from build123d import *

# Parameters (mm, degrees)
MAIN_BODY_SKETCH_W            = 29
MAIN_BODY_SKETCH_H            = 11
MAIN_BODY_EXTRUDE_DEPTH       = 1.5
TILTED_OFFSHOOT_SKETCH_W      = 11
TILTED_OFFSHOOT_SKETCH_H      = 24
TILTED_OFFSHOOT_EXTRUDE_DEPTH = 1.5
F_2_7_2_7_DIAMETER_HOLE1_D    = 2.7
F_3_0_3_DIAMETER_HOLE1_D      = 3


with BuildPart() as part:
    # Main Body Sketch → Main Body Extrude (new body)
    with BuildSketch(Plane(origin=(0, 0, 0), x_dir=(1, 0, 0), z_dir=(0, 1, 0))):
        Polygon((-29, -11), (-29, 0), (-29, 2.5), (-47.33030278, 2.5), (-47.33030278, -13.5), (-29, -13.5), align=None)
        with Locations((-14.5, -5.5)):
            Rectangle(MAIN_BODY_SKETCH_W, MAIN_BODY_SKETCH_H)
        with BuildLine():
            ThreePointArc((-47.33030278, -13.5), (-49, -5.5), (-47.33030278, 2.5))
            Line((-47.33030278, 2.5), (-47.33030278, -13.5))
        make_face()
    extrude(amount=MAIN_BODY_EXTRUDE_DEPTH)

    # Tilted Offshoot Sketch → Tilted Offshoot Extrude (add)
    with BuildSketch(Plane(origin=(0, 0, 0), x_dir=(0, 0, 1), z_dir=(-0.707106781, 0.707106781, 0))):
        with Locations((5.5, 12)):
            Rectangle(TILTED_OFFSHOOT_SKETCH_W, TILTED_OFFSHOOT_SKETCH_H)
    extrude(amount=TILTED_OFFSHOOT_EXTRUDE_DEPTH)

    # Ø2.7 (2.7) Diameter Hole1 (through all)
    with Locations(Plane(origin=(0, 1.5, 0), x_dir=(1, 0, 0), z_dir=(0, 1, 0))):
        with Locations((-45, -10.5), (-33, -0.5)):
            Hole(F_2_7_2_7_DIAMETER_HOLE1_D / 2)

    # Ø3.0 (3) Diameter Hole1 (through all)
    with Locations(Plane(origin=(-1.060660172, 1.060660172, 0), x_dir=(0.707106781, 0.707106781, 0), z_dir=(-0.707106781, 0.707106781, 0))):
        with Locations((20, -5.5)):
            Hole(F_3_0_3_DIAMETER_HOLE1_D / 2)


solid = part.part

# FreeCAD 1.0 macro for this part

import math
import FreeCAD as App
import Part
import Sketcher
Q = App.Units.Quantity


def add_polygon(sketch, points):
    """Adds a closed chain of lines whose ends are joined by coincident constraints."""
    first, n = sketch.GeometryCount, len(points)
    for a, b in zip(points, points[1:] + points[:1]):
        sketch.addGeometry(Part.LineSegment(App.Vector(*a, 0), App.Vector(*b, 0)), False)
    for i in range(n):
        sketch.addConstraint(Sketcher.Constraint("Coincident", first + i, 2, first + (i + 1) % n, 1))

doc = App.newDocument("Part")
params = doc.addObject("Spreadsheet::Sheet", "Params")
for row, (alias, value) in enumerate([
    ("sketch1_radius", "20 mm"),
    ("sketch1_width", "29 mm"),
    ("sketch1_height", "11 mm"),
    ("sketch1_height2", "2.5 mm"),
    ("pad1_length", "1.5 mm"),
    ("sketch2_width", "11 mm"),
    ("sketch2_height", "24 mm"),
    ("pad2_length", "1.5 mm"),
    ("sketch3_diameter", "2.7 mm"),
    ("hole_diameter", "2.7 mm"),
    ("sketch4_diameter", "3 mm"),
    ("hole2_diameter", "3 mm"),
], start=1):
    params.set(f"A{row}", alias)
    params.set(f"B{row}", "=" + value)
    params.setAlias(f"B{row}", alias)

body = doc.addObject("PartDesign::Body", "Body")

sketch1 = doc.addObject("Sketcher::SketchObject", "Sketch")
body.addObject(sketch1)
sketch1.AttachmentSupport = (doc.XZ_Plane, [""])
sketch1.MapMode = "FlatFace"
sketch1.addGeometry([
    Part.LineSegment(App.Vector(-29, -2.5, 0), App.Vector(-47.3, -2.5, 0)),
    Part.ArcOfCircle(Part.Circle(App.Vector(-29, 5.5, 0), App.Vector(0, 0, 1), 20), math.radians(156), math.radians(204)),
    Part.LineSegment(App.Vector(-47.3, 13.5, 0), App.Vector(-29, 13.5, 0)),
    Part.LineSegment(App.Vector(-29, 13.5, 0), App.Vector(-29, 11, 0)),
    Part.LineSegment(App.Vector(-29, 11, 0), App.Vector(0, 11, 0)),
    Part.LineSegment(App.Vector(0, 11, 0), App.Vector(0, 0, 0)),
    Part.LineSegment(App.Vector(0, 0, 0), App.Vector(-29, 0, 0)),
    Part.LineSegment(App.Vector(-29, 0, 0), App.Vector(-29, -2.5, 0)),
], False)
sketch1.addConstraint([
    Sketcher.Constraint("Coincident", 0, 2, 1, 2),
    Sketcher.Constraint("Coincident", 1, 1, 2, 1),
    Sketcher.Constraint("Coincident", 2, 2, 3, 1),
    Sketcher.Constraint("Coincident", 3, 2, 4, 1),
    Sketcher.Constraint("Coincident", 4, 2, 5, 1),
    Sketcher.Constraint("Coincident", 5, 2, 6, 1),
    Sketcher.Constraint("Coincident", 6, 2, 7, 1),
    Sketcher.Constraint("Coincident", 7, 2, 0, 1),
    Sketcher.Constraint("Horizontal", 0),
    Sketcher.Constraint("Horizontal", 2),
    Sketcher.Constraint("Vertical", 3),
    Sketcher.Constraint("Horizontal", 4),
    Sketcher.Constraint("Vertical", 5),
    Sketcher.Constraint("Horizontal", 6),
    Sketcher.Constraint("Vertical", 7),
    Sketcher.Constraint("Coincident", 5, 2, -1, 1),
    Sketcher.Constraint("Vertical", 0, 2, 1, 1),
    Sketcher.Constraint("Vertical", 1, 3, 2, 2),
    Sketcher.Constraint("Vertical", 3, 2, 6, 2),
    Sketcher.Constraint("Equal", 3, 7),
    Sketcher.Constraint("Radius", 1, Q("20 mm")),
    Sketcher.Constraint("DistanceX", 4, 1, 4, 2, Q("29 mm")),
    Sketcher.Constraint("DistanceY", 5, 2, 5, 1, Q("11 mm")),
    Sketcher.Constraint("DistanceY", 3, 2, 3, 1, Q("2.5 mm")),
])
sketch1.setExpression("Constraints[20]", "Params.sketch1_radius")
sketch1.setExpression("Constraints[21]", "Params.sketch1_width")
sketch1.setExpression("Constraints[22]", "Params.sketch1_height")
sketch1.setExpression("Constraints[23]", "Params.sketch1_height2")
pad1 = doc.addObject("PartDesign::Pad", "Pad")
body.addObject(pad1)
pad1.Profile = sketch1
pad1.setExpression("Length", "Params.pad1_length")
pad1.Reversed = True

sketch2 = doc.addObject("Sketcher::SketchObject", "Sketch001")
body.addObject(sketch2)
sketch2.Placement = App.Placement(App.Vector(0, 0, 0), App.Rotation(App.Vector(0, 0, 1), App.Vector(0.707106781, 0.707106781, 0), App.Vector(-0.707106781, 0.707106781, 0), "ZXY"))
add_polygon(sketch2, [(0, 24), (0, 0), (11, 0), (11, 24)])
sketch2.addConstraint([
    Sketcher.Constraint("Vertical", 0),
    Sketcher.Constraint("Horizontal", 1),
    Sketcher.Constraint("Vertical", 2),
    Sketcher.Constraint("Horizontal", 3),
    Sketcher.Constraint("Coincident", 0, 2, -1, 1),
    Sketcher.Constraint("DistanceX", 1, 1, 1, 2, Q("11 mm")),
    Sketcher.Constraint("DistanceY", 0, 2, 0, 1, Q("24 mm")),
])
sketch2.setExpression("Constraints[9]", "Params.sketch2_width")
sketch2.setExpression("Constraints[10]", "Params.sketch2_height")
pad2 = doc.addObject("PartDesign::Pad", "Pad001")
body.addObject(pad2)
pad2.Profile = sketch2
pad2.setExpression("Length", "Params.pad2_length")

sketch3 = doc.addObject("Sketcher::SketchObject", "Sketch002")
body.addObject(sketch3)
sketch3.AttachmentSupport = (doc.XZ_Plane, [""])
sketch3.MapMode = "FlatFace"
sketch3.AttachmentOffset = App.Placement(App.Vector(0, 0, -1.5), App.Rotation())
sketch3.addGeometry([
    Part.Circle(App.Vector(-45, 10.5, 0), App.Vector(0, 0, 1), 1.4),
    Part.Circle(App.Vector(-33, 0.5, 0), App.Vector(0, 0, 1), 1.4),
], False)
sketch3.addConstraint([
    Sketcher.Constraint("Equal", 0, 1),
    Sketcher.Constraint("Diameter", 0, Q("2.7 mm")),
    Sketcher.Constraint("DistanceX", 0, 3, -1, 1, Q("45 mm")),
    Sketcher.Constraint("DistanceX", 1, 3, -1, 1, Q("33 mm")),
    Sketcher.Constraint("DistanceY", 1, 3, 0, 3, Q("10 mm")),
    Sketcher.Constraint("DistanceY", -1, 1, 0, 3, Q("10.5 mm")),
])
sketch3.setExpression("Constraints[1]", "Params.sketch3_diameter")
doc.recompute()
hole = doc.addObject("PartDesign::Hole", "Hole")
body.addObject(hole)
hole.Profile = sketch3
hole.ThreadType = "None"
hole.setExpression("Diameter", "Params.hole_diameter")
hole.DepthType = "ThroughAll"
hole.Reversed = True

sketch4 = doc.addObject("Sketcher::SketchObject", "Sketch003")
body.addObject(sketch4)
sketch4.Placement = App.Placement(App.Vector(-1.06066, 1.06066, 0), App.Rotation(App.Vector(0.707106781, 0.707106781, 0), App.Vector(0, 0, -0.999999999), App.Vector(-0.707106781, 0.707106781, 0), "ZXY"))
sketch4.addGeometry(Part.Circle(App.Vector(20, -5.5, 0), App.Vector(0, 0, 1), 1.5), False)
sketch4.addConstraint([
    Sketcher.Constraint("Diameter", 0, Q("3 mm")),
    Sketcher.Constraint("DistanceX", -1, 1, 0, 3, Q("20 mm")),
    Sketcher.Constraint("DistanceY", 0, 3, -1, 1, Q("5.5 mm")),
])
sketch4.setExpression("Constraints[0]", "Params.sketch4_diameter")
doc.recompute()
hole2 = doc.addObject("PartDesign::Hole", "Hole001")
body.addObject(hole2)
hole2.Profile = sketch4
hole2.ThreadType = "None"
hole2.setExpression("Diameter", "Params.hole2_diameter")
hole2.DepthType = "ThroughAll"

doc.recompute()
